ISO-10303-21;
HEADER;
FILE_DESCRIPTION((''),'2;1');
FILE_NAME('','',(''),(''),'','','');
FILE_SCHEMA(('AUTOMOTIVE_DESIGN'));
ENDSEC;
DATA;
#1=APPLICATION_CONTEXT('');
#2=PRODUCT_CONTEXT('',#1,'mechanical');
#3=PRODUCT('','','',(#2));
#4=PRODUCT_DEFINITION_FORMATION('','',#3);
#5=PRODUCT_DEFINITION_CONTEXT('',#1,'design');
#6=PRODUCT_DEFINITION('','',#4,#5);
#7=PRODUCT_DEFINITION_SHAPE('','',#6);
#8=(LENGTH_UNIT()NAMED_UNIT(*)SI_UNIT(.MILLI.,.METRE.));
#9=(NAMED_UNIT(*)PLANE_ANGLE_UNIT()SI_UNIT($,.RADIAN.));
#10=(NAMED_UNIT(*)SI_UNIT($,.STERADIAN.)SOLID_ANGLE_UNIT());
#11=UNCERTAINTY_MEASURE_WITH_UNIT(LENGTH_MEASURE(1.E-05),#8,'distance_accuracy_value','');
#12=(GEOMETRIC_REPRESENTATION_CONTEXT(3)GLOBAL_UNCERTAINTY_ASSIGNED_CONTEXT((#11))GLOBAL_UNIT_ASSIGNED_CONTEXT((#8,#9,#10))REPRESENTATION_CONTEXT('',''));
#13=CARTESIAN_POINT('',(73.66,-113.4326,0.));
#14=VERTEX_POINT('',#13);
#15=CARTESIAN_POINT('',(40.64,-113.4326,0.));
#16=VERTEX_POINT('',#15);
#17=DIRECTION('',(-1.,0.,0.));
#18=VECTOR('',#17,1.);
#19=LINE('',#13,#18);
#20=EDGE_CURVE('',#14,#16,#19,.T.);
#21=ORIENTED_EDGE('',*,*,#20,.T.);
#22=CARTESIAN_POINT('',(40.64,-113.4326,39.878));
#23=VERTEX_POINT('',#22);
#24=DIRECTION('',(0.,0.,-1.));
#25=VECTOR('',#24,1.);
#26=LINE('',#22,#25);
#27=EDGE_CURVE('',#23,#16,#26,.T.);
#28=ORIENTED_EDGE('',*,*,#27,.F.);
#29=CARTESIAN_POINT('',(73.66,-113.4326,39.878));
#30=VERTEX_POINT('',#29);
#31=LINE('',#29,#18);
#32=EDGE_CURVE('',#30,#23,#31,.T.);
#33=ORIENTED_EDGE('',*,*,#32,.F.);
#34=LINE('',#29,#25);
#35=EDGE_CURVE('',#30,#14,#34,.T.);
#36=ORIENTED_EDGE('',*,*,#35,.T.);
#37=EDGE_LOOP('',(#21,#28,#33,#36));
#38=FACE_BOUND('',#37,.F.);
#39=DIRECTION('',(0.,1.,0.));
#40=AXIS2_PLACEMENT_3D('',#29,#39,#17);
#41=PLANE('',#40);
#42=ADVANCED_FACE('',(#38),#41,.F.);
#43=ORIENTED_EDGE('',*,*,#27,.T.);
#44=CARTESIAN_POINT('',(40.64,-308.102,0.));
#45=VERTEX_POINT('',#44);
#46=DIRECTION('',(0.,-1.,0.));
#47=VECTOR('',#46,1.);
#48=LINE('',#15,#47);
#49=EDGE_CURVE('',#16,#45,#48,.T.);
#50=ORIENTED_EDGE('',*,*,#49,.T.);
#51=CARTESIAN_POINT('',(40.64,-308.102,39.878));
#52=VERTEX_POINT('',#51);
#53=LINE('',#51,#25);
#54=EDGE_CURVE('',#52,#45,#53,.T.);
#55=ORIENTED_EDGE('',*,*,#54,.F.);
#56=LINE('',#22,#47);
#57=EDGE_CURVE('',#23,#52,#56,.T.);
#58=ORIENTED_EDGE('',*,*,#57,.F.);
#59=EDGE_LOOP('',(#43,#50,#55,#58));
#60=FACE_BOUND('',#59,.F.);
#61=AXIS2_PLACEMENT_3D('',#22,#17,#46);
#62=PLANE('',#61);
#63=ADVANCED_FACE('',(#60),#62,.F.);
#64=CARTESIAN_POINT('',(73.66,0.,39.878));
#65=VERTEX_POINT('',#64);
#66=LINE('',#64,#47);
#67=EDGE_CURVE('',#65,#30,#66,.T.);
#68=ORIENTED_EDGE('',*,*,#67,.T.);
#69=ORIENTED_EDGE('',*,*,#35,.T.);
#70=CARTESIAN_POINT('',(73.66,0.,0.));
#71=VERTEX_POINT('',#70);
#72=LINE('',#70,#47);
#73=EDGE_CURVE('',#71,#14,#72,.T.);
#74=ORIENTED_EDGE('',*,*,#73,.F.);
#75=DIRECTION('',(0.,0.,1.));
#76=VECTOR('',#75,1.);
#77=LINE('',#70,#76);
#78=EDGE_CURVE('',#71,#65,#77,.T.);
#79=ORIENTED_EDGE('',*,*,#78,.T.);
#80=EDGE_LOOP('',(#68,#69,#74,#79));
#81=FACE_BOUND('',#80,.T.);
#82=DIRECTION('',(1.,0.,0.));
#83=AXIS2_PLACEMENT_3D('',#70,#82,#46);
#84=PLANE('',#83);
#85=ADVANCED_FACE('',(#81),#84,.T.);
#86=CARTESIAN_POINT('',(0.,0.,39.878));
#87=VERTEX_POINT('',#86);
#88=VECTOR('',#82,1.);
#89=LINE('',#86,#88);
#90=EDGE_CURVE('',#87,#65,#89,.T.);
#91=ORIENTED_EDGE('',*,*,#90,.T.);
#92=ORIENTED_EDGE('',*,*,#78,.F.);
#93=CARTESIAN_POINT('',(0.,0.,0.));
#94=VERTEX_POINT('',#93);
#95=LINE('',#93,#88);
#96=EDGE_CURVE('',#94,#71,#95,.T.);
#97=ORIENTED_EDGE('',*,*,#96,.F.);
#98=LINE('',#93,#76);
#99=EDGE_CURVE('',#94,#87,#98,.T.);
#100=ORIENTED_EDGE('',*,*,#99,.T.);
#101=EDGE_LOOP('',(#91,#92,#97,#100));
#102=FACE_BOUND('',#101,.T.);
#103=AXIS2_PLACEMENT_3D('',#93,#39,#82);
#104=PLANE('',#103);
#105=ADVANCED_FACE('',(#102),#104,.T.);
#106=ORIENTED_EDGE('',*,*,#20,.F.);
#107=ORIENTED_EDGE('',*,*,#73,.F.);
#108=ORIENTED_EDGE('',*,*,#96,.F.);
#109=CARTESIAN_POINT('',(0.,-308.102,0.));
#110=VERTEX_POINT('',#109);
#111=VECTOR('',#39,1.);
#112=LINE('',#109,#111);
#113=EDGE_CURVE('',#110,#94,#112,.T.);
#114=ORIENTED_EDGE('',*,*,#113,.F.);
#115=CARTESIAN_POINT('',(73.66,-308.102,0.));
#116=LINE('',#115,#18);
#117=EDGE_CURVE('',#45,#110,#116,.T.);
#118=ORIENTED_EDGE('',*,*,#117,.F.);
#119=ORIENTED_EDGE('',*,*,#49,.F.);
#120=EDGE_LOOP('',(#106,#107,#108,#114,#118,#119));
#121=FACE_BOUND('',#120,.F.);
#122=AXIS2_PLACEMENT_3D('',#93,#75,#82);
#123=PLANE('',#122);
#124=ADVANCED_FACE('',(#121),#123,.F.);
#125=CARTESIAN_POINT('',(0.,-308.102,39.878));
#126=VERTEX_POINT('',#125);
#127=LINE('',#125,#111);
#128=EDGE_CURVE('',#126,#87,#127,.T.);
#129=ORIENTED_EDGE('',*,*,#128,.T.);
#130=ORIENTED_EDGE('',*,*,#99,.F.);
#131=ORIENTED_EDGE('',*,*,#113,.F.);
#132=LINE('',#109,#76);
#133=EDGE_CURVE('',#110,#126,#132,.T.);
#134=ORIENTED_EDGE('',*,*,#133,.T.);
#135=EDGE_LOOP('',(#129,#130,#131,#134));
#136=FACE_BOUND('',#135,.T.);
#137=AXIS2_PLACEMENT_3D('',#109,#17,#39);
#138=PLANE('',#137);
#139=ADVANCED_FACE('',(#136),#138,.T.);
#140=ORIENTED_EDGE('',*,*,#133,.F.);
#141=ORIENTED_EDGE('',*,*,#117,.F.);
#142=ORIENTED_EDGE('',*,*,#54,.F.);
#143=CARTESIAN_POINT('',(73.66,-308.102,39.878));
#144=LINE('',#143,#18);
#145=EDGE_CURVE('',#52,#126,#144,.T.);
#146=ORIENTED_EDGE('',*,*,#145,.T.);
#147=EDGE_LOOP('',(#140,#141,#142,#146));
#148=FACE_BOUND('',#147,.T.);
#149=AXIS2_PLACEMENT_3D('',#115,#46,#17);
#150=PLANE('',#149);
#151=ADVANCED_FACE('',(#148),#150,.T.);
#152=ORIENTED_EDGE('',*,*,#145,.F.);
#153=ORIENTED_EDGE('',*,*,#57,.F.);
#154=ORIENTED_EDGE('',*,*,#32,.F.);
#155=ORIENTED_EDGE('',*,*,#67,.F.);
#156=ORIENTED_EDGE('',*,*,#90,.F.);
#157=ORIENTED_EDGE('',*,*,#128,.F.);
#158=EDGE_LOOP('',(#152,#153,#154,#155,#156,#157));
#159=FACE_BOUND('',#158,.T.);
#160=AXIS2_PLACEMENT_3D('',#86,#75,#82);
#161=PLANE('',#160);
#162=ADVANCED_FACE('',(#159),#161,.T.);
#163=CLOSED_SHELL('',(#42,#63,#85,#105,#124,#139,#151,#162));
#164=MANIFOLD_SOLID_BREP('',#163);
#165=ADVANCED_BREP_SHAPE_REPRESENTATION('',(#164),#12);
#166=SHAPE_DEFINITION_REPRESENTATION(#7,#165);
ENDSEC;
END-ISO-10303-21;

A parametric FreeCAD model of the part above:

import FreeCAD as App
import Part
import Sketcher

V = App.Vector
Q = App.Units.Quantity

doc = App.newDocument("Part")
params = doc.addObject("Spreadsheet::Sheet", "Params")
for row, (alias, value) in enumerate([
    ("sketch1_width", "2.9 in"),
    ("sketch1_height", "12.13 in"),
    ("pad1_length", "1.57 in"),
    ("sketch2_width", "1.3 in"),
    ("pocket1_length", "1.57 in"),
], start=1):
    params.set(f"A{row}", alias)
    params.set(f"B{row}", "=" + value)
    params.setAlias(f"B{row}", alias)

body = doc.addObject("PartDesign::Body", "Body")

sketch1 = body.newObject("Sketcher::SketchObject", "Sketch")
sketch1.AttachmentSupport = (doc.getObject("XY_Plane"), [""])
sketch1.MapMode = "FlatFace"
sketch1.addGeometry([
    Part.LineSegment(V(73.66, 0, 0), V(0, 0, 0)),
    Part.LineSegment(V(0, 0, 0), V(0, -308.102, 0)),
    Part.LineSegment(V(0, -308.102, 0), V(73.66, -308.102, 0)),
    Part.LineSegment(V(73.66, -308.102, 0), V(73.66, 0, 0)),
], False)
sketch1.addConstraint([
    Sketcher.Constraint("Coincident", 0, 2, 1, 1),
    Sketcher.Constraint("Coincident", 1, 2, 2, 1),
    Sketcher.Constraint("Coincident", 2, 2, 3, 1),
    Sketcher.Constraint("Coincident", 3, 2, 0, 1),
    Sketcher.Constraint("Horizontal", 0),
    Sketcher.Constraint("Vertical", 1),
    Sketcher.Constraint("Horizontal", 2),
    Sketcher.Constraint("Vertical", 3),
    Sketcher.Constraint("Coincident", 0, 2, -1, 1),
    Sketcher.Constraint("DistanceX", 0, 2, 0, 1, Q("2.9 in")),
    Sketcher.Constraint("DistanceY", 1, 2, 1, 1, Q("12.13 in")),
])
sketch1.setExpression("Constraints[9]", "Params.sketch1_width")
sketch1.setExpression("Constraints[10]", "Params.sketch1_height")
pad1 = body.newObject("PartDesign::Pad", "Pad")
pad1.Profile = sketch1
pad1.setExpression("Length", "Params.pad1_length")

sketch2 = body.newObject("Sketcher::SketchObject", "Sketch001")
sketch2.AttachmentSupport = (doc.getObject("XY_Plane"), [""])
sketch2.MapMode = "FlatFace"
sketch2.AttachmentOffset = App.Placement(V(0, 0, 1.57 * 25.4), App.Rotation())
sketch2.addGeometry([
    Part.LineSegment(V(40.64, -308.102, 0), V(73.66, -308.102, 0)),
    Part.LineSegment(V(73.66, -308.102, 0), V(73.66, -113.4326, 0)),
    Part.LineSegment(V(73.66, -113.4326, 0), V(40.64, -113.4326, 0)),
    Part.LineSegment(V(40.64, -113.4326, 0), V(40.64, -308.102, 0)),
], False)
sketch2.addConstraint([
    Sketcher.Constraint("Coincident", 0, 2, 1, 1),
    Sketcher.Constraint("Coincident", 1, 2, 2, 1),
    Sketcher.Constraint("Coincident", 2, 2, 3, 1),
    Sketcher.Constraint("Coincident", 3, 2, 0, 1),
    Sketcher.Constraint("Horizontal", 0),
    Sketcher.Constraint("Vertical", 1),
    Sketcher.Constraint("Horizontal", 2),
    Sketcher.Constraint("Vertical", 3),
    Sketcher.Constraint("DistanceX", 0, 1, 0, 2, Q("1.3 in")),
    Sketcher.Constraint("DistanceX", -1, 1, 0, 2, Q("2.9 in")),
    Sketcher.Constraint("DistanceY", 0, 2, -1, 1, Q("12.13 in")),
    Sketcher.Constraint("DistanceY", 1, 1, 1, 2, 194.6694),
])
sketch2.setExpression("Constraints[8]", "Params.sketch2_width")
pocket1 = body.newObject("PartDesign::Pocket", "Pocket")
pocket1.Profile = sketch2
pocket1.setExpression("Length", "Params.pocket1_length")

doc.recompute()
